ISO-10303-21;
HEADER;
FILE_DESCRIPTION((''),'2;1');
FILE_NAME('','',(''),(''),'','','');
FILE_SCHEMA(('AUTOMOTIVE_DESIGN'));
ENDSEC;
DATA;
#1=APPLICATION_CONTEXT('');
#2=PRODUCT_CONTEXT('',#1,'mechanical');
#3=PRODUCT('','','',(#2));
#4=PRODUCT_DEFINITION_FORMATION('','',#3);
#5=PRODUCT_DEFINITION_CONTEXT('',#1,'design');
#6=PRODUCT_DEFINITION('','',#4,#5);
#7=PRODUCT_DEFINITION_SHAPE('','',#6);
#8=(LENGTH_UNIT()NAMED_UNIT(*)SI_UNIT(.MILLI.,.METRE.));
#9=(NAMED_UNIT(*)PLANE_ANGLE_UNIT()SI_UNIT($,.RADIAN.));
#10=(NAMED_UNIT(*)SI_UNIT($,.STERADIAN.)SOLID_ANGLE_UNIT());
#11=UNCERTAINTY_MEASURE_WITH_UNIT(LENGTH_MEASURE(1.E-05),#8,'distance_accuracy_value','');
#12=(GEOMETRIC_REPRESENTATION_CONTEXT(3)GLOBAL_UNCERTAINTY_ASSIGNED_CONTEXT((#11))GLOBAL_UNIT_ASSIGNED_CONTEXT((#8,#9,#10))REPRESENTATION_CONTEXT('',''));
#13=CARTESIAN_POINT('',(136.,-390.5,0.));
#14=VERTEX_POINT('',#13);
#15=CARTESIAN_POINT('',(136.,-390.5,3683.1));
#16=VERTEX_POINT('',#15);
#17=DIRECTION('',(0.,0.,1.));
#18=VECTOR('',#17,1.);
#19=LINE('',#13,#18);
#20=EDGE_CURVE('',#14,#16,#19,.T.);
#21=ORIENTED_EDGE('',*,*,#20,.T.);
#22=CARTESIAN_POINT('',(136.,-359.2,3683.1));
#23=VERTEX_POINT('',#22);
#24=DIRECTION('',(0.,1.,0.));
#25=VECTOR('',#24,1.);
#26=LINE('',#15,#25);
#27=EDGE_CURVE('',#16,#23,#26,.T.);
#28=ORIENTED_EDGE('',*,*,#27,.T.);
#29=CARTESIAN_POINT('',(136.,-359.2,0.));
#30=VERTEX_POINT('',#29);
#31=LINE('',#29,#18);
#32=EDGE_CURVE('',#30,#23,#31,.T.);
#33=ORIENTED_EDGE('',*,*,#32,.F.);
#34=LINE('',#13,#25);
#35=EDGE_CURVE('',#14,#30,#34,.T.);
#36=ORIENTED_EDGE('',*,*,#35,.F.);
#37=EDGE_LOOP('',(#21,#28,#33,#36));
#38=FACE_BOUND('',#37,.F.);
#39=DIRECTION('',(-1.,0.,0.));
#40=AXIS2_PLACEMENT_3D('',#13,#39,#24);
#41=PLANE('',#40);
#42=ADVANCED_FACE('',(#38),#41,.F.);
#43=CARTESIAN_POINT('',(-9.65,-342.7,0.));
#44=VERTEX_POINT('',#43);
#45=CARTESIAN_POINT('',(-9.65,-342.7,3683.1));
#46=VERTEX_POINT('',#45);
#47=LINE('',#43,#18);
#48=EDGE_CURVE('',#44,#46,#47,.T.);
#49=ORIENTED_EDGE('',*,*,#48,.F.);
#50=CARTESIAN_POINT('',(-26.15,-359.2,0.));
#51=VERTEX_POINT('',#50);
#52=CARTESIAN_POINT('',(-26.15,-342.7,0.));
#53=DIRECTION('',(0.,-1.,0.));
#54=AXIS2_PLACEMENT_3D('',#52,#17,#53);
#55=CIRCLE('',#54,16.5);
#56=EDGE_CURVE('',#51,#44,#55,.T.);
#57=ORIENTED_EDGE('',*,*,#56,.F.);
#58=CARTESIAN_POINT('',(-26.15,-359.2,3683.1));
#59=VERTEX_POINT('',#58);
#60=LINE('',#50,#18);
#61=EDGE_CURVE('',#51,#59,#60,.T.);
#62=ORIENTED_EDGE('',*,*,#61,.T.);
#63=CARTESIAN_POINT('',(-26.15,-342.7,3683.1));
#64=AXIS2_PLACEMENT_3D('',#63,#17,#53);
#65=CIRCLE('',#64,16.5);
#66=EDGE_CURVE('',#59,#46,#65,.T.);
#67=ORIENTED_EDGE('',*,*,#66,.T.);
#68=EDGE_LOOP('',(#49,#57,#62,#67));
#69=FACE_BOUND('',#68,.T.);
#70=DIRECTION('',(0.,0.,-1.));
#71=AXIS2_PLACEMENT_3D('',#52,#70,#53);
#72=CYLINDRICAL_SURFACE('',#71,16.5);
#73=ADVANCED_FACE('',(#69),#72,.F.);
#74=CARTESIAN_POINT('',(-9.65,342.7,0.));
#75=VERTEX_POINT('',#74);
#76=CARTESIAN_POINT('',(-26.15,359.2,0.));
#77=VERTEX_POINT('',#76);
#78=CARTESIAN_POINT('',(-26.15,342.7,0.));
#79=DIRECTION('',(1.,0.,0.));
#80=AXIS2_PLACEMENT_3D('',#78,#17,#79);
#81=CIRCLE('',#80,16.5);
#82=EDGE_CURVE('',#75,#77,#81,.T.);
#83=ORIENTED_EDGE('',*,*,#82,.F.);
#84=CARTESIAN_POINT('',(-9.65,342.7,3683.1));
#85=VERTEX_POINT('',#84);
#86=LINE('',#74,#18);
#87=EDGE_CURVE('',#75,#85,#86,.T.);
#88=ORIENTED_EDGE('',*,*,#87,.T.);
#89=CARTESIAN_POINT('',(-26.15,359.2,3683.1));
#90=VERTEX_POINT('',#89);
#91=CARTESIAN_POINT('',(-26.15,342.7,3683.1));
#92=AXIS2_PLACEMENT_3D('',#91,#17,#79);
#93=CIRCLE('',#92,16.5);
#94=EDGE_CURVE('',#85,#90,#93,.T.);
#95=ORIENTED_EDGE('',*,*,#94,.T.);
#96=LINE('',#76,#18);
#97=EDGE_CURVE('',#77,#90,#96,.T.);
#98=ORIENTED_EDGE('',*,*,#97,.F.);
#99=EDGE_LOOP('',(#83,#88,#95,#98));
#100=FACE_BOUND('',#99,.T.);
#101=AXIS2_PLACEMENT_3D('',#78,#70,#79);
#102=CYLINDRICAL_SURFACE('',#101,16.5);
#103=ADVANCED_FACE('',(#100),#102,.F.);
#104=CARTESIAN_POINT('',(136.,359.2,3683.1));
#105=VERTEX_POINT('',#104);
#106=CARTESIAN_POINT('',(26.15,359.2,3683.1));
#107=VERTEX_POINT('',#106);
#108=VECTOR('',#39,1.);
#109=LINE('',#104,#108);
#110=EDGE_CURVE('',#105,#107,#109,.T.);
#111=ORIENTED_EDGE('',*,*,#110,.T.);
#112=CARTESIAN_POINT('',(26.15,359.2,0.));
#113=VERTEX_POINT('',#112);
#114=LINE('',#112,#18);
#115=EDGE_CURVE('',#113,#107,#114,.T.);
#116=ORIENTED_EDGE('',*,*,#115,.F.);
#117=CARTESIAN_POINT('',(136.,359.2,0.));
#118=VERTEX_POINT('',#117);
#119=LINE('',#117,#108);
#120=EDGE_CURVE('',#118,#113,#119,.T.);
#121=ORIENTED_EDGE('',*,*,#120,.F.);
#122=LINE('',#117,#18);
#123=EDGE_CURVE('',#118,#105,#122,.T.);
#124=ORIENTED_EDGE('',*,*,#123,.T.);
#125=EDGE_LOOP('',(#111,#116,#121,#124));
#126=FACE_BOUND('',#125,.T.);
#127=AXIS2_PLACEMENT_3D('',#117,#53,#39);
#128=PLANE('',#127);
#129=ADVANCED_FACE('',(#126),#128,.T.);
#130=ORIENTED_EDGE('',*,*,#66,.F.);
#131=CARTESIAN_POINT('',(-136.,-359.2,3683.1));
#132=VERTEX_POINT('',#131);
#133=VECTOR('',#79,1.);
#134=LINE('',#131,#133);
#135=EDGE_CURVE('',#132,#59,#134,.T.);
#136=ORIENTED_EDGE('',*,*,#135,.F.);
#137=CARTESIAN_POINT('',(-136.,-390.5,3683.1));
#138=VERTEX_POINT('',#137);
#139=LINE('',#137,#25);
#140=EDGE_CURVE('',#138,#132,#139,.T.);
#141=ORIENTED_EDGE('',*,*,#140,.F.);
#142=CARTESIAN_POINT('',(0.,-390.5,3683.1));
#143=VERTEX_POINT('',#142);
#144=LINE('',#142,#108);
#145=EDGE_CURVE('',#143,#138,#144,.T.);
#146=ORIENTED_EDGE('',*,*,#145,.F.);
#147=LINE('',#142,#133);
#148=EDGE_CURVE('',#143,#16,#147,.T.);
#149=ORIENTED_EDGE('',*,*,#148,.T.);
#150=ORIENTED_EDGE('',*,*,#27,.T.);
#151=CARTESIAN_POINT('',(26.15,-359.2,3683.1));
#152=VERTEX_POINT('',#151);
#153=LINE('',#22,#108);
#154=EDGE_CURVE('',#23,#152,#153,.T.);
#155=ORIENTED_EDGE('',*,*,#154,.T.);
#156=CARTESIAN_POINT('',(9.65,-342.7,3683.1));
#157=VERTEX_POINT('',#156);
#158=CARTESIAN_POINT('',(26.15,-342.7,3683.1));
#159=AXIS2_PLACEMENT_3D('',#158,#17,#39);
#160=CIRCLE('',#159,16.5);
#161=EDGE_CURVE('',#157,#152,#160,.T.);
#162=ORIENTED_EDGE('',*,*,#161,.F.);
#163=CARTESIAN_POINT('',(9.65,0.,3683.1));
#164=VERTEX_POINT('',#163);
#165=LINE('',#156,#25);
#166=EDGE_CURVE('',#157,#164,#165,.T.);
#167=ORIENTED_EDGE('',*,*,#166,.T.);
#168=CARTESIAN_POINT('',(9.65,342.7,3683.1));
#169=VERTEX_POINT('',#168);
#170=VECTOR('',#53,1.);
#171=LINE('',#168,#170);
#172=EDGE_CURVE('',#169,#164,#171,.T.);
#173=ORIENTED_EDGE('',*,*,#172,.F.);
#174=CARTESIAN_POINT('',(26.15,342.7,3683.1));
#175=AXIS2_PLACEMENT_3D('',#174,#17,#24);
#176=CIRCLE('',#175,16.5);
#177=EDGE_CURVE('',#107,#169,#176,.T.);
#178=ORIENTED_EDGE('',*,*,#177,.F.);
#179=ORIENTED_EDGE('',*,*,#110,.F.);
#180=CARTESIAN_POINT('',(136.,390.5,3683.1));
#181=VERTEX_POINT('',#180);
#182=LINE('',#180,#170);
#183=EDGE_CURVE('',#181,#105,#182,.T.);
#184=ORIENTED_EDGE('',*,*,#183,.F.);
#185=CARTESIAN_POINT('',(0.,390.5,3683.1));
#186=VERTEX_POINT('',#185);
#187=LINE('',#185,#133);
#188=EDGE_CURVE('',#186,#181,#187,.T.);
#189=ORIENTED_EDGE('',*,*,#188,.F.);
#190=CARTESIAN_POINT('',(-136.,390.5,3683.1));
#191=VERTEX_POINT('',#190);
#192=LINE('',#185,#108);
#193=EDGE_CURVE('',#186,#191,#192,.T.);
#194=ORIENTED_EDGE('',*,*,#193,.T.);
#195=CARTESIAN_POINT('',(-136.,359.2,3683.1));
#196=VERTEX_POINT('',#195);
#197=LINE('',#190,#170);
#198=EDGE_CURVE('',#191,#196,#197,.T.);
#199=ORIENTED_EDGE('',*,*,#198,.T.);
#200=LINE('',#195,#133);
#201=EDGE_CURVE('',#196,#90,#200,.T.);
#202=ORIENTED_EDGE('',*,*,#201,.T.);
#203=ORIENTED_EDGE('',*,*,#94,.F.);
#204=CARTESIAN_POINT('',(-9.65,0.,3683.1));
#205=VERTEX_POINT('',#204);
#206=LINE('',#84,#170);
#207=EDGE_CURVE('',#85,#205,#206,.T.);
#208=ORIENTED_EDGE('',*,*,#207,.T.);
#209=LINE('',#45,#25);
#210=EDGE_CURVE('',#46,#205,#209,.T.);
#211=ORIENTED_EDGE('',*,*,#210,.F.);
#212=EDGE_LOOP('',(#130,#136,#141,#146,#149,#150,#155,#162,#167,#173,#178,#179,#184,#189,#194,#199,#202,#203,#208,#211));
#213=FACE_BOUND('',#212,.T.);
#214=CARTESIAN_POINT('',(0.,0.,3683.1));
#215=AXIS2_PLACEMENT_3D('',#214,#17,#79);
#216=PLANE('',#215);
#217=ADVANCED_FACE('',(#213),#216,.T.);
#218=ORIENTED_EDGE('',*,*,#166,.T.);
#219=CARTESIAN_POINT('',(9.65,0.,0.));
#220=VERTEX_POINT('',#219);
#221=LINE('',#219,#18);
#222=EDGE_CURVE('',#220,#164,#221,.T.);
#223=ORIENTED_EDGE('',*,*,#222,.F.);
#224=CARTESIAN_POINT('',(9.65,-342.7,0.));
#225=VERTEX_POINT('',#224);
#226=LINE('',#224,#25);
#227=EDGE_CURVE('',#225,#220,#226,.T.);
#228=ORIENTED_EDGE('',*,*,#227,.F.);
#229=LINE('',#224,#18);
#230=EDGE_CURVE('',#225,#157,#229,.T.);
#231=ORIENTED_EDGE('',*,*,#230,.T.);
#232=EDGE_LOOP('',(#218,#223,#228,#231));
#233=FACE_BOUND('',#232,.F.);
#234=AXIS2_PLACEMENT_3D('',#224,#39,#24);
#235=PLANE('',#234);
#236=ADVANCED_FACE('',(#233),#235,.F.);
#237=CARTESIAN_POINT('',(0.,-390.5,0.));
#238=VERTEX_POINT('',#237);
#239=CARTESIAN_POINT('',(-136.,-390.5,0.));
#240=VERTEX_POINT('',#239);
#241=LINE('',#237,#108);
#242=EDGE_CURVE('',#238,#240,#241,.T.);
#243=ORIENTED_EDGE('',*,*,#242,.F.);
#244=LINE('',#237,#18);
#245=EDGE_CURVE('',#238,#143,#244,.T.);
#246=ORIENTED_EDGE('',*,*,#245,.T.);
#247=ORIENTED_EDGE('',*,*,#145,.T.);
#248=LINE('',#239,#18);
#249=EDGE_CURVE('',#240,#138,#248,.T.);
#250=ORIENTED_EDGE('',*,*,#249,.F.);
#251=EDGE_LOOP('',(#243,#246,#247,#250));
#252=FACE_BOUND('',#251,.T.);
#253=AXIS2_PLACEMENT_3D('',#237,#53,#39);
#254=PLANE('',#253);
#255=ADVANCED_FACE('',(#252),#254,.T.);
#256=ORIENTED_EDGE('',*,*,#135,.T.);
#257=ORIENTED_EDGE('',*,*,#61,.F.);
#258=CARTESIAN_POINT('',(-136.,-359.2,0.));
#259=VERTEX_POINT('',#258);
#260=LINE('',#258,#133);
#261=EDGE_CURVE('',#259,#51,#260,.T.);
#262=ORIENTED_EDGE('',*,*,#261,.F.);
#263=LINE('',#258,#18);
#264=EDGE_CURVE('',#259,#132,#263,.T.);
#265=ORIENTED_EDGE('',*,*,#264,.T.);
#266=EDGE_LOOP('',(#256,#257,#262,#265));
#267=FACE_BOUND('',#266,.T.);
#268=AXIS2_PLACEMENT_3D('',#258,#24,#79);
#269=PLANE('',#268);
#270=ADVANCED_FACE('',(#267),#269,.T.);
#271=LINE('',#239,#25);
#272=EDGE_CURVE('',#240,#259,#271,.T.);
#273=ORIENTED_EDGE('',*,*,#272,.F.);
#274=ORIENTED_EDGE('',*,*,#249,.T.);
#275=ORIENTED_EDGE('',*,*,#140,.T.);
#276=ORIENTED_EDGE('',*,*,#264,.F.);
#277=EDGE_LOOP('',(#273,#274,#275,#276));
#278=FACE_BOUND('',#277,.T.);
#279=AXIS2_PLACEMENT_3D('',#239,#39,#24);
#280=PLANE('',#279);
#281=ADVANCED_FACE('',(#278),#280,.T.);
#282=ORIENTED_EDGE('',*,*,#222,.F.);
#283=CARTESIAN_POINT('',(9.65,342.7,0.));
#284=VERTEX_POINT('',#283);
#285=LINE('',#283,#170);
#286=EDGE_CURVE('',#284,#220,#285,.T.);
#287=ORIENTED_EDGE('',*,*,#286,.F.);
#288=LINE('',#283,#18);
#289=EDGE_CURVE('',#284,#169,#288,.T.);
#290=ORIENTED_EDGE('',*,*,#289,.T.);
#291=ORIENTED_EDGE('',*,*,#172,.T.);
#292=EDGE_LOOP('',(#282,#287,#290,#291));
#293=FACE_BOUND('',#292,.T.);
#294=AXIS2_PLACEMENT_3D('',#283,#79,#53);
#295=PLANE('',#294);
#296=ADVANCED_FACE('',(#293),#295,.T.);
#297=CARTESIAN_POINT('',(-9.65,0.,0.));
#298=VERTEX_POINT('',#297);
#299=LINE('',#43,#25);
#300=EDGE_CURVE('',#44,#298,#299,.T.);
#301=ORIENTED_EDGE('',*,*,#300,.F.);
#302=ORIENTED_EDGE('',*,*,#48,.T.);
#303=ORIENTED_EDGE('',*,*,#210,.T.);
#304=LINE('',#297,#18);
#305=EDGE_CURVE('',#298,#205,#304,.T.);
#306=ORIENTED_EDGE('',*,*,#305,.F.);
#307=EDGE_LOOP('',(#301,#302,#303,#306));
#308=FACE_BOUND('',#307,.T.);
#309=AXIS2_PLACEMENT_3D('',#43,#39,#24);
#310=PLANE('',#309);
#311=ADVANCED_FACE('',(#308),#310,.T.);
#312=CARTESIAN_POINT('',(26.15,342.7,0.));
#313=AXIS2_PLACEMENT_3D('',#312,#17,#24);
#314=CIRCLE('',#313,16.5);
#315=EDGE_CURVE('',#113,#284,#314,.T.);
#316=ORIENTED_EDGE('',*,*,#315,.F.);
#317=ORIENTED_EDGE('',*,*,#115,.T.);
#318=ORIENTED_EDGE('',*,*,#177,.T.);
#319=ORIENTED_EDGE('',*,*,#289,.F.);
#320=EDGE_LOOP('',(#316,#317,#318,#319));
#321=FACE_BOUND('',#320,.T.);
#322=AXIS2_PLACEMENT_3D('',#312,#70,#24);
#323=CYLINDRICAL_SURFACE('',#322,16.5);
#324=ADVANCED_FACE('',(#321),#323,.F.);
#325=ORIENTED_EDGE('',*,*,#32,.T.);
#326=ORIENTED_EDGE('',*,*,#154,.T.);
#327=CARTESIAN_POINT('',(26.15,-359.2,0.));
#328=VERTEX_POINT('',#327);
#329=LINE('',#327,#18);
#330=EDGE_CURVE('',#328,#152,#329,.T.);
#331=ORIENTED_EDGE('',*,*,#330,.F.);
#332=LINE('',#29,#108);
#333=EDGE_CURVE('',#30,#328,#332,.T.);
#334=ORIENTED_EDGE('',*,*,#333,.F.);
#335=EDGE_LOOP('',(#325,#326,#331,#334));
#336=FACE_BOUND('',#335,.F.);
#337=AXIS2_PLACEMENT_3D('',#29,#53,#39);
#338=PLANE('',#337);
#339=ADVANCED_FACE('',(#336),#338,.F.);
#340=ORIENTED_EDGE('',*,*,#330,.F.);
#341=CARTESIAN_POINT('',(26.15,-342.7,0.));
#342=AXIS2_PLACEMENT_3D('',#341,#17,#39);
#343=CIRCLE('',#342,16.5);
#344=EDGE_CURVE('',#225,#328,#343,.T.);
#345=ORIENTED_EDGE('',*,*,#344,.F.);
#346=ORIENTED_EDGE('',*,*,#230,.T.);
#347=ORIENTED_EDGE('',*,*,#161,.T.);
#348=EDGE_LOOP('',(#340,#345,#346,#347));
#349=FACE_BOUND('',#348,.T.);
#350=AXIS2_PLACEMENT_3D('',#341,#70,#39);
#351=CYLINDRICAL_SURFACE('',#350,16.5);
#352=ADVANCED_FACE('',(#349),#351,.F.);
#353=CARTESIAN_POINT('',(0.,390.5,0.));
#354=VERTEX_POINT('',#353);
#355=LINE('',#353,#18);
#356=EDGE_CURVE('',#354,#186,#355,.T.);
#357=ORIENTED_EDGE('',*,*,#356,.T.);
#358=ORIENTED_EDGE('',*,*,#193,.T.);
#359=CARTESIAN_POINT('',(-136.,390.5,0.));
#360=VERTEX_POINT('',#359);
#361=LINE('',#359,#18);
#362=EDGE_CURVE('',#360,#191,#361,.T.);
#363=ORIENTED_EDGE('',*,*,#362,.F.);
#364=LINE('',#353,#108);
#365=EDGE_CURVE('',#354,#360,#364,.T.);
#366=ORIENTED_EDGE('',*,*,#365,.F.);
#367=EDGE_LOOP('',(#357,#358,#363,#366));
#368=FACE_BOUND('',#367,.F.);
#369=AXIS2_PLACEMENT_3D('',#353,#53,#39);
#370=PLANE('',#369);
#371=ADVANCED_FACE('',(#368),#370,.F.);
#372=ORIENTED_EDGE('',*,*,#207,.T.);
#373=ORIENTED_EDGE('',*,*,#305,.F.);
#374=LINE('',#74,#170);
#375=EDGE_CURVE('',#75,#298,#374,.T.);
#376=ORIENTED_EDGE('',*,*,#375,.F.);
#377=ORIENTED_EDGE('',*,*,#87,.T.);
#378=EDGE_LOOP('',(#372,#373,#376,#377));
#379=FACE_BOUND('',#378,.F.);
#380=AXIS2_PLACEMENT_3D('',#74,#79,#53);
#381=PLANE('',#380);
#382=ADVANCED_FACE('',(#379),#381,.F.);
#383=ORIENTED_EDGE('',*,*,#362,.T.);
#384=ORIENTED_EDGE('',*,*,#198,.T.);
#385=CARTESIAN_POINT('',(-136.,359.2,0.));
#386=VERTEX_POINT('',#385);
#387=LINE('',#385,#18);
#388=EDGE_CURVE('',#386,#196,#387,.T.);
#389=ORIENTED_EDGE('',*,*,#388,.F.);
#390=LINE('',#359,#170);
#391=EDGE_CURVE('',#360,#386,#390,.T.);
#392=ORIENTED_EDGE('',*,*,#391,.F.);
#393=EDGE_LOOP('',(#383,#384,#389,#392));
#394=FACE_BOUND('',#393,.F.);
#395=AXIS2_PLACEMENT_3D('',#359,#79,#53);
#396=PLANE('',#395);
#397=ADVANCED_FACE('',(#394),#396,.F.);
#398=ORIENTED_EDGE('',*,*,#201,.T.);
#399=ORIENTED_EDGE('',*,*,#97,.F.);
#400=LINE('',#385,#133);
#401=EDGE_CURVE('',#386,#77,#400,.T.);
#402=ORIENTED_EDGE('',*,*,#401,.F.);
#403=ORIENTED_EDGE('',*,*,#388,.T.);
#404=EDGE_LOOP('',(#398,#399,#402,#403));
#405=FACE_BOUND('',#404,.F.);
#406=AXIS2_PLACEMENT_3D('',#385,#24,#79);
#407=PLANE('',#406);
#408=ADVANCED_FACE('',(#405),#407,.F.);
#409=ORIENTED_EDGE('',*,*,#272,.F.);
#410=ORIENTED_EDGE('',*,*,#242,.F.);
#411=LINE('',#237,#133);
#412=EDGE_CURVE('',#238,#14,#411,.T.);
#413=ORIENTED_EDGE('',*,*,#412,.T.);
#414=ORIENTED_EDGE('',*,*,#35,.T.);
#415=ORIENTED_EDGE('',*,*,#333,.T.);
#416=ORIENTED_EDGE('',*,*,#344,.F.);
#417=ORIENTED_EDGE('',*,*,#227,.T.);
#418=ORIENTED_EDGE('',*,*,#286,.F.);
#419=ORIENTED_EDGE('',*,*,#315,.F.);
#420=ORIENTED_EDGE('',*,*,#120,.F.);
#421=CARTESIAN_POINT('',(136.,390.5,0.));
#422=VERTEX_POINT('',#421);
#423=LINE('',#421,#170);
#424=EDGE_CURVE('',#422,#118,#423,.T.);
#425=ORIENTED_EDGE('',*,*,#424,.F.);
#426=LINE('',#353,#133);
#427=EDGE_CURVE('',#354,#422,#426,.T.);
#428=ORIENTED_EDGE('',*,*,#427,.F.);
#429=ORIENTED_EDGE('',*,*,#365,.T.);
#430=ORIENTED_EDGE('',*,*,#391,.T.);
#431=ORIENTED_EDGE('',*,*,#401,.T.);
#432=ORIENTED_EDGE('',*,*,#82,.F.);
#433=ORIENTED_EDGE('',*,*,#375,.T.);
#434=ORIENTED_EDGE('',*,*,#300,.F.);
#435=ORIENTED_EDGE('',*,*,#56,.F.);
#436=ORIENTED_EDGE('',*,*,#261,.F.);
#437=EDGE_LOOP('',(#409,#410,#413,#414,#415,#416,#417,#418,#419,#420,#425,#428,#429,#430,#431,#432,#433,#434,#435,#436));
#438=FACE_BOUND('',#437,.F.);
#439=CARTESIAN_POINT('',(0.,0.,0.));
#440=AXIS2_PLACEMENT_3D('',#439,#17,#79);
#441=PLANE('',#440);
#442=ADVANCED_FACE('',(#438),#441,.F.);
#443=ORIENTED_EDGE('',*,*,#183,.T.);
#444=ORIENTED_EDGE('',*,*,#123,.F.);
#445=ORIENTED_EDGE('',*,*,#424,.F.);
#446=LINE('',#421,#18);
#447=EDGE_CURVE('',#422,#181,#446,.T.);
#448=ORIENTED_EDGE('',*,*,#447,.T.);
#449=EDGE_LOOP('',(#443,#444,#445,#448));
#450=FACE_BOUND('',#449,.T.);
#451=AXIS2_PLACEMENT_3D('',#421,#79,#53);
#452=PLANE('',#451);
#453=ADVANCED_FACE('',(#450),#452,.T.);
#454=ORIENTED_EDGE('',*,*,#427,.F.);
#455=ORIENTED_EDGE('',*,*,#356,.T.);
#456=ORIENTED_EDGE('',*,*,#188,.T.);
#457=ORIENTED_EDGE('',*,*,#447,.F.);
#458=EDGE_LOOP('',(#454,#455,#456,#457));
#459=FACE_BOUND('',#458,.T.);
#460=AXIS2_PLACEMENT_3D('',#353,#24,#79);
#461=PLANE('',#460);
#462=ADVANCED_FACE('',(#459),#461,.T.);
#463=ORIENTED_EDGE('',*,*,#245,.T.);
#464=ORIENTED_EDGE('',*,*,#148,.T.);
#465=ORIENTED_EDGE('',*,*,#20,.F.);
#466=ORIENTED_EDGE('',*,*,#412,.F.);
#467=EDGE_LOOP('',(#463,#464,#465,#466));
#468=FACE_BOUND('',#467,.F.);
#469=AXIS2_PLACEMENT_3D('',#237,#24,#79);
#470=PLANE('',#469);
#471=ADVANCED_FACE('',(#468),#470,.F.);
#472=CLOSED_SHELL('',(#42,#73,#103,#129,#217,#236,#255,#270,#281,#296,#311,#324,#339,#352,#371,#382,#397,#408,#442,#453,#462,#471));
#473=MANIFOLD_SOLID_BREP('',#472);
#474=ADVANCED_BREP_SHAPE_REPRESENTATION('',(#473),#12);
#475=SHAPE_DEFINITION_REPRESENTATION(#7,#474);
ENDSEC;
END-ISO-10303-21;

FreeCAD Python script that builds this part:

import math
import FreeCAD as App
import Part
import Sketcher

V = App.Vector
Q = App.Units.Quantity

doc = App.newDocument("Part")
body = doc.addObject("PartDesign::Body", "Body")

# Sketch on XY plane
sketch1 = doc.addObject("Sketcher::SketchObject", "Sketch")
body.addObject(sketch1)
sketch1.AttachmentSupport = (doc.XY_Plane, [""])
sketch1.MapMode = "FlatFace"
sketch1.addGeometry([
    Part.LineSegment(V(-136, -359, 0), V(-136, -390, 0)),  # 0
    Part.LineSegment(V(-136, -390, 0), V(136, -390, 0)),  # 1
    Part.LineSegment(V(136, -390, 0), V(136, -359, 0)),  # 2
    Part.LineSegment(V(136, -359, 0), V(26, -359, 0)),  # 3
    Part.ArcOfCircle(Part.Circle(V(26, -343, 0), V(0, 0, 1), 16), math.radians(180), math.radians(270)),  # 4
    Part.LineSegment(V(10, -343, 0), V(10, 343, 0)),  # 5
    Part.ArcOfCircle(Part.Circle(V(26, 343, 0), V(0, 0, 1), 16), math.radians(90), math.radians(180)),  # 6
    Part.LineSegment(V(26, 359, 0), V(136, 359, 0)),  # 7
    Part.LineSegment(V(136, 359, 0), V(136, 390, 0)),  # 8
    Part.LineSegment(V(136, 390, 0), V(-136, 390, 0)),  # 9
    Part.LineSegment(V(-136, 390, 0), V(-136, 359, 0)),  # 10
    Part.LineSegment(V(-136, 359, 0), V(-26, 359, 0)),  # 11
    Part.ArcOfCircle(Part.Circle(V(-26, 343, 0), V(0, 0, 1), 16), math.radians(0), math.radians(90)),  # 12
    Part.LineSegment(V(-10, 343, 0), V(-10, -343, 0)),  # 13
    Part.ArcOfCircle(Part.Circle(V(-26, -343, 0), V(0, 0, 1), 16), math.radians(-90), math.radians(0)),  # 14
    Part.LineSegment(V(-26, -359, 0), V(-136, -359, 0)),  # 15
], False)
sketch1.addConstraint([
    Sketcher.Constraint("Coincident", 0, 2, 1, 1),
    Sketcher.Constraint("Coincident", 1, 2, 2, 1),
    Sketcher.Constraint("Coincident", 2, 2, 3, 1),
    Sketcher.Constraint("Tangent", 3, 2, 4, 2),
    Sketcher.Constraint("Tangent", 4, 1, 5, 1),
    Sketcher.Constraint("Tangent", 5, 2, 6, 2),
    Sketcher.Constraint("Tangent", 6, 1, 7, 1),
    Sketcher.Constraint("Coincident", 7, 2, 8, 1),
    Sketcher.Constraint("Coincident", 8, 2, 9, 1),
    Sketcher.Constraint("Coincident", 9, 2, 10, 1),
    Sketcher.Constraint("Coincident", 10, 2, 11, 1),
    Sketcher.Constraint("Tangent", 11, 2, 12, 2),
    Sketcher.Constraint("Tangent", 12, 1, 13, 1),
    Sketcher.Constraint("Tangent", 13, 2, 14, 2),
    Sketcher.Constraint("Tangent", 14, 1, 15, 1),
    Sketcher.Constraint("Coincident", 15, 2, 0, 1),
    Sketcher.Constraint("Vertical", 0),
    Sketcher.Constraint("Horizontal", 1),
    Sketcher.Constraint("Vertical", 2),
    Sketcher.Constraint("Horizontal", 3),
    Sketcher.Constraint("Vertical", 5),
    Sketcher.Constraint("Horizontal", 7),
    Sketcher.Constraint("Vertical", 8),
    Sketcher.Constraint("Horizontal", 9),
    Sketcher.Constraint("Vertical", 10),
    Sketcher.Constraint("Horizontal", 11),
    Sketcher.Constraint("Vertical", 13),
    Sketcher.Constraint("Horizontal", 15),
    Sketcher.Constraint("Equal", 4, 6),
    Sketcher.Constraint("Equal", 6, 12),
    Sketcher.Constraint("Equal", 12, 14),
    Sketcher.Constraint("Symmetric", 4, 3, 12, 3, -1, 1),
    Sketcher.Constraint("Symmetric", 0, 2, 8, 2, -1, 1),
    Sketcher.Constraint("Symmetric", 7, 2, 10, 2, -2),
    Sketcher.Constraint("Symmetric", 2, 2, 15, 2, -2),
    Sketcher.Constraint("Radius", 4, Q("16.5 mm")),
    Sketcher.Constraint("DistanceY", 0, 2, 0, 1, Q("31.3 mm")),
    Sketcher.Constraint("DistanceX", 0, 2, -1, 1, Q("136 mm")),
    Sketcher.Constraint("DistanceY", 0, 2, -1, 1, Q("390.5 mm")),
    Sketcher.Constraint("DistanceX", -1, 1, 4, 1, Q("9.65 mm")),
])
pad1 = doc.addObject("PartDesign::Pad", "Pad")
body.addObject(pad1)
pad1.Profile = sketch1
pad1.Length = 3683.1

doc.recompute()
